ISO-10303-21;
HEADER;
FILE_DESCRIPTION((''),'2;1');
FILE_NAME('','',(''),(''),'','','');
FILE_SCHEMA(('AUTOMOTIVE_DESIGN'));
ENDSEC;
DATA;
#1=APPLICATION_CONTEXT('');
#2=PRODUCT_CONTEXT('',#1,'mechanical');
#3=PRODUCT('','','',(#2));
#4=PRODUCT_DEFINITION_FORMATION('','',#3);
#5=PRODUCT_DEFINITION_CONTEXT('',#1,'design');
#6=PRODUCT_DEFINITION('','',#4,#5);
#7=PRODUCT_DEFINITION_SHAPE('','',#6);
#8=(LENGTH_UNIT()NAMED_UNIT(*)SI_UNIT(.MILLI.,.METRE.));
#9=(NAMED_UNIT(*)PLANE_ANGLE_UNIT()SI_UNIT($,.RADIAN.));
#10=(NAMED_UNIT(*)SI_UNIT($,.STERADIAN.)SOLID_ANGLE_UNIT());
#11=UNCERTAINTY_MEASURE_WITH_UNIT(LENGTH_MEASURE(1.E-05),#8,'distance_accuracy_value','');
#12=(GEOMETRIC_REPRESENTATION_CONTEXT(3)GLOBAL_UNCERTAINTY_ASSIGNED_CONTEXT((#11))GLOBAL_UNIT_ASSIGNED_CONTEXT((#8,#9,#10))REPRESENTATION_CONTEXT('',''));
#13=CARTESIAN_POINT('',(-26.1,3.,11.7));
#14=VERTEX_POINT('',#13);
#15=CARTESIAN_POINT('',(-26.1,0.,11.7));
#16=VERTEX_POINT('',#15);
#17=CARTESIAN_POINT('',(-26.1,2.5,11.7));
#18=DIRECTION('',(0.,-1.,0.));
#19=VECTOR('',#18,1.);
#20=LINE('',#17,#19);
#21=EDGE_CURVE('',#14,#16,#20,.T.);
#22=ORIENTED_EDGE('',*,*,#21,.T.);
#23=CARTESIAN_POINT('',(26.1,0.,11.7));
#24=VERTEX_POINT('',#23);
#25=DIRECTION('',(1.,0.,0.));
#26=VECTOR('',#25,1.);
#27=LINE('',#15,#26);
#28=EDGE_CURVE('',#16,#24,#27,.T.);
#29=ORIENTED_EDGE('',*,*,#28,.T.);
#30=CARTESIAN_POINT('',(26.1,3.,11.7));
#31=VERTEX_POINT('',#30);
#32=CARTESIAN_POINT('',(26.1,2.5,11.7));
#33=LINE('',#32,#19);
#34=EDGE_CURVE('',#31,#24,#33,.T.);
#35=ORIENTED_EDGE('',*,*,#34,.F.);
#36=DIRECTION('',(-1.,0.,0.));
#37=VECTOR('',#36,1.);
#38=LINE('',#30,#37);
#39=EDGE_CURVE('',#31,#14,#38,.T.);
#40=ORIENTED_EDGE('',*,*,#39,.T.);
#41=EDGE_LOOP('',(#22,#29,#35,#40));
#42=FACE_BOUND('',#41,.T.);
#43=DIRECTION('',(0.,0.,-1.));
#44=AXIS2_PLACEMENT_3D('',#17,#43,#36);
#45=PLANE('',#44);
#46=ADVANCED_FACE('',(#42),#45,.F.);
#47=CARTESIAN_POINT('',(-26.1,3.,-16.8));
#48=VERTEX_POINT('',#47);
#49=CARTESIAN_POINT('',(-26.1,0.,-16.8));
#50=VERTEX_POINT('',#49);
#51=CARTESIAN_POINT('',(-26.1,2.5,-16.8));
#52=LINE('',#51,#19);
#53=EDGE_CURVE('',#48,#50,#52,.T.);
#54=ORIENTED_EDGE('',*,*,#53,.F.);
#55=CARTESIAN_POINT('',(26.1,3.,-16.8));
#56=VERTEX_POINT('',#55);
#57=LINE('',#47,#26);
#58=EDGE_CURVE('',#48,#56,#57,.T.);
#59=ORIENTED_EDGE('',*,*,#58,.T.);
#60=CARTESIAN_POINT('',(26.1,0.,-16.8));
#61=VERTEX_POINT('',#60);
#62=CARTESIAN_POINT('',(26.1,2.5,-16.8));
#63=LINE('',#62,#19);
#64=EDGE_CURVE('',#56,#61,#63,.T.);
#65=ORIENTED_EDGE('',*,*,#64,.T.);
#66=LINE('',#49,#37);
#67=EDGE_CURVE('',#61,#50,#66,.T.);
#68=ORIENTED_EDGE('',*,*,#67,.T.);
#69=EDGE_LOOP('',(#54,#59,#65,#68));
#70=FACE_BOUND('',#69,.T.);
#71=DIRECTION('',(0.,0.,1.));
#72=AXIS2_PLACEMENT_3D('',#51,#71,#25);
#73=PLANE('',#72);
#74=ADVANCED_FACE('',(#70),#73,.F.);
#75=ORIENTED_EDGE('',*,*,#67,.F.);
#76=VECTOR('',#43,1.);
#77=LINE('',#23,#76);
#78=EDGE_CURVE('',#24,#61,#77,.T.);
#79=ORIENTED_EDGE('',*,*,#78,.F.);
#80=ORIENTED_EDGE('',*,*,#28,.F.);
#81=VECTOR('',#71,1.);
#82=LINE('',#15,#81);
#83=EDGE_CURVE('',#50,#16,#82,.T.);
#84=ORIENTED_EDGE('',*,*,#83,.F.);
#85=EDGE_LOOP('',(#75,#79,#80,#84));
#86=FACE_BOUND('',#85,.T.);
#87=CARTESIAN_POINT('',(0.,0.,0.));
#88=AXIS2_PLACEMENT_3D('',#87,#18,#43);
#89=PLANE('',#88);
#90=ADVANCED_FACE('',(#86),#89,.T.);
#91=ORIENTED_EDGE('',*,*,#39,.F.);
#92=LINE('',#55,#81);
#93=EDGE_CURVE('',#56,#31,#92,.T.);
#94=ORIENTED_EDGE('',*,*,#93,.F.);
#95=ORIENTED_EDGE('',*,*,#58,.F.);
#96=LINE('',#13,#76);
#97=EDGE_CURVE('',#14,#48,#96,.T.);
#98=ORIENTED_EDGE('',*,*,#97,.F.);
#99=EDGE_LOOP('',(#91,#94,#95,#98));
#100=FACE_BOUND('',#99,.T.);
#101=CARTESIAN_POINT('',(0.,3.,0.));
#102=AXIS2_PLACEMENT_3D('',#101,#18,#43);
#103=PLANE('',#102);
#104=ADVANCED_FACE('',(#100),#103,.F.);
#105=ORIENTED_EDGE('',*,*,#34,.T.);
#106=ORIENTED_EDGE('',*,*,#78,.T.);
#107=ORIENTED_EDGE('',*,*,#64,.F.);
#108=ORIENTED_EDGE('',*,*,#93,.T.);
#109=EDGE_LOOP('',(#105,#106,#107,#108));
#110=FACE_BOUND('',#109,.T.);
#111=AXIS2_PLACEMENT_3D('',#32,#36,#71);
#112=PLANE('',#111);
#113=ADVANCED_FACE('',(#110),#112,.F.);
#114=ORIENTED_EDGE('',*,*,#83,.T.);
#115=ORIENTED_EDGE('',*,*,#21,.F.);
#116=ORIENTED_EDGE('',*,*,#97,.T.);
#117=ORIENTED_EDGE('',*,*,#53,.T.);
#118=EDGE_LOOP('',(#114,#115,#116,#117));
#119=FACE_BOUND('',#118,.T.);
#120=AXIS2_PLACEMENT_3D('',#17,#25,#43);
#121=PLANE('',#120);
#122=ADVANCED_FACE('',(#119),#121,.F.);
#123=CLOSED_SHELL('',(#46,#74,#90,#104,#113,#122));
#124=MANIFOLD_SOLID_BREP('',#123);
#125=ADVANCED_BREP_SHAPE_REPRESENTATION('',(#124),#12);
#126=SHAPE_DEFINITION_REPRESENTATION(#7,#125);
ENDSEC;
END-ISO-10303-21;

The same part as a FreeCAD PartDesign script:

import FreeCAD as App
import Part
import Sketcher

V = App.Vector
Q = App.Units.Quantity

doc = App.newDocument("Part")
body = doc.addObject("PartDesign::Body", "Body")

# Sketch on XZ plane
sketch1 = body.newObject("Sketcher::SketchObject", "Sketch")
sketch1.AttachmentSupport = (doc.getObject("XZ_Plane"), [""])
sketch1.MapMode = "FlatFace"
sketch1.addGeometry(Part.LineSegment(V(-26.1, -16.8, 0), V(-26.1, 11.7, 0)), False)
sketch1.addGeometry(Part.LineSegment(V(-26.1, 11.7, 0), V(26.1, 11.7, 0)), False)
sketch1.addGeometry(Part.LineSegment(V(26.1, 11.7, 0), V(26.1, -16.8, 0)), False)
sketch1.addGeometry(Part.LineSegment(V(26.1, -16.8, 0), V(-26.1, -16.8, 0)), False)
sketch1.addGeometry(Part.Circle(V(-22.8, 3.2, 0), V(0, 0, 1), 1), False)
sketch1.addGeometry(Part.LineSegment(V(17.7, 7.7, 0), V(-17.7, 7.7, 0)), False)
sketch1.addGeometry(Part.LineSegment(V(-17.7, 7.7, 0), V(-17.7, 1.9, 0)), False)
sketch1.addGeometry(Part.LineSegment(V(-17.7, 1.9, 0), V(17.7, 1.9, 0)), False)
sketch1.addGeometry(Part.LineSegment(V(17.7, 1.9, 0), V(17.7, 7.7, 0)), False)
sketch1.addGeometry(Part.Circle(V(22.8, 3.2, 0), V(0, 0, 1), 1), False)
sketch1.addGeometry(Part.Circle(V(-22.8, -8.3, 0), V(0, 0, 1), 1), False)
sketch1.addGeometry(Part.LineSegment(V(17.7, -7, 0), V(-17.7, -7, 0)), False)
sketch1.addGeometry(Part.LineSegment(V(-17.7, -7, 0), V(-17.7, -12.8, 0)), False)
sketch1.addGeometry(Part.LineSegment(V(-17.7, -12.8, 0), V(17.7, -12.8, 0)), False)
sketch1.addGeometry(Part.LineSegment(V(17.7, -12.8, 0), V(17.7, -7, 0)), False)
sketch1.addGeometry(Part.Circle(V(22.8, -8.3, 0), V(0, 0, 1), 1), False)
sketch1.addConstraint(Sketcher.Constraint("Coincident", 0, 2, 1, 1))
sketch1.addConstraint(Sketcher.Constraint("Coincident", 1, 2, 2, 1))
sketch1.addConstraint(Sketcher.Constraint("Coincident", 2, 2, 3, 1))
sketch1.addConstraint(Sketcher.Constraint("Coincident", 3, 2, 0, 1))
sketch1.addConstraint(Sketcher.Constraint("Coincident", 5, 2, 6, 1))
sketch1.addConstraint(Sketcher.Constraint("Coincident", 6, 2, 7, 1))
sketch1.addConstraint(Sketcher.Constraint("Coincident", 7, 2, 8, 1))
sketch1.addConstraint(Sketcher.Constraint("Coincident", 8, 2, 5, 1))
sketch1.addConstraint(Sketcher.Constraint("Coincident", 11, 2, 12, 1))
sketch1.addConstraint(Sketcher.Constraint("Coincident", 12, 2, 13, 1))
sketch1.addConstraint(Sketcher.Constraint("Coincident", 13, 2, 14, 1))
sketch1.addConstraint(Sketcher.Constraint("Coincident", 14, 2, 11, 1))
sketch1.addConstraint(Sketcher.Constraint("Vertical", 0))
sketch1.addConstraint(Sketcher.Constraint("Horizontal", 1))
sketch1.addConstraint(Sketcher.Constraint("Vertical", 2))
sketch1.addConstraint(Sketcher.Constraint("Horizontal", 3))
sketch1.addConstraint(Sketcher.Constraint("Horizontal", 5))
sketch1.addConstraint(Sketcher.Constraint("Vertical", 6))
sketch1.addConstraint(Sketcher.Constraint("Horizontal", 7))
sketch1.addConstraint(Sketcher.Constraint("Vertical", 8))
sketch1.addConstraint(Sketcher.Constraint("Horizontal", 11))
sketch1.addConstraint(Sketcher.Constraint("Vertical", 12))
sketch1.addConstraint(Sketcher.Constraint("Horizontal", 13))
sketch1.addConstraint(Sketcher.Constraint("Vertical", 14))
sketch1.addConstraint(Sketcher.Constraint("Equal", 4, 9))
sketch1.addConstraint(Sketcher.Constraint("Equal", 9, 10))
sketch1.addConstraint(Sketcher.Constraint("Equal", 10, 15))
sketch1.addConstraint(Sketcher.Constraint("Symmetric", 4, 3, 9, 3, -2))
sketch1.addConstraint(Sketcher.Constraint("Symmetric", 10, 3, 15, 3, -2))
sketch1.addConstraint(Sketcher.Constraint("Vertical", 4, 3, 10, 3))
sketch1.addConstraint(Sketcher.Constraint("Vertical", 6, 2, 11, 2))
sketch1.addConstraint(Sketcher.Constraint("Vertical", 8, 2, 13, 2))
sketch1.addConstraint(Sketcher.Constraint("Equal", 8, 12))
sketch1.addConstraint(Sketcher.Constraint("Diameter", 4, Q("2 mm")))
sketch1.addConstraint(Sketcher.Constraint("DistanceX", 1, 1, 1, 2, Q("52.2 mm")))
sketch1.addConstraint(Sketcher.Constraint("DistanceY", 0, 1, 0, 2, Q("28.5 mm")))
sketch1.addConstraint(Sketcher.Constraint("DistanceY", 6, 2, 6, 1, Q("5.8 mm")))
sketch1.addConstraint(Sketcher.Constraint("DistanceY", 11, 2, -1, 1, Q("7 mm")))
sketch1.addConstraint(Sketcher.Constraint("DistanceY", 10, 3, 0, 2, Q("20 mm")))
sketch1.addConstraint(Sketcher.Constraint("DistanceY", 2, 2, 9, 3, Q("20 mm")))
sketch1.addConstraint(Sketcher.Constraint("DistanceY", 5, 2, 0, 2, Q("4 mm")))
sketch1.addConstraint(Sketcher.Constraint("DistanceY", 3, 2, 12, 2, Q("4 mm")))
sketch1.addConstraint(Sketcher.Constraint("DistanceX", 4, 3, -1, 1, Q("22.8 mm")))
sketch1.addConstraint(Sketcher.Constraint("DistanceX", 0, 2, -1, 1, Q("26.1 mm")))
sketch1.addConstraint(Sketcher.Constraint("DistanceX", 5, 2, 5, 1, Q("35.320637 mm")))
sketch1.addConstraint(Sketcher.Constraint("DistanceX", 5, 2, -1, 1, Q("17.660318 mm")))
pad1 = body.newObject("PartDesign::Pad", "Pad")
pad1.Profile = sketch1
pad1.Length = 2.5
pad1.Reversed = True

# Sketch on XZ plane
sketch2 = body.newObject("Sketcher::SketchObject", "Sketch001")
sketch2.AttachmentSupport = (doc.getObject("XZ_Plane"), [""])
sketch2.MapMode = "FlatFace"
sketch2.addGeometry(Part.LineSegment(V(-26, 12, 0), V(-26, -17, 0)), False)
sketch2.addGeometry(Part.LineSegment(V(-26, -17, 0), V(26, -17, 0)), False)
sketch2.addGeometry(Part.LineSegment(V(26, -17, 0), V(26, 12, 0)), False)
sketch2.addGeometry(Part.LineSegment(V(26, 12, 0), V(-26, 12, 0)), False)
sketch2.addConstraint(Sketcher.Constraint("Coincident", 0, 2, 1, 1))
sketch2.addConstraint(Sketcher.Constraint("Coincident", 1, 2, 2, 1))
sketch2.addConstraint(Sketcher.Constraint("Coincident", 2, 2, 3, 1))
sketch2.addConstraint(Sketcher.Constraint("Coincident", 3, 2, 0, 1))
sketch2.addConstraint(Sketcher.Constraint("Vertical", 0))
sketch2.addConstraint(Sketcher.Constraint("Horizontal", 1))
sketch2.addConstraint(Sketcher.Constraint("Vertical", 2))
sketch2.addConstraint(Sketcher.Constraint("Horizontal", 3))
sketch2.addConstraint(Sketcher.Constraint("DistanceX", 1, 1, 1, 2, Q("52.2 mm")))
sketch2.addConstraint(Sketcher.Constraint("DistanceY", 0, 2, 0, 1, Q("28.5 mm")))
sketch2.addConstraint(Sketcher.Constraint("DistanceX", 0, 2, -1, 1, Q("26.1 mm")))
sketch2.addConstraint(Sketcher.Constraint("DistanceY", 0, 2, -1, 1, Q("16.8 mm")))
pad2 = body.newObject("PartDesign::Pad", "Pad001")
pad2.Profile = sketch2
pad2.Length = 3
pad2.Reversed = True

doc.recompute()
